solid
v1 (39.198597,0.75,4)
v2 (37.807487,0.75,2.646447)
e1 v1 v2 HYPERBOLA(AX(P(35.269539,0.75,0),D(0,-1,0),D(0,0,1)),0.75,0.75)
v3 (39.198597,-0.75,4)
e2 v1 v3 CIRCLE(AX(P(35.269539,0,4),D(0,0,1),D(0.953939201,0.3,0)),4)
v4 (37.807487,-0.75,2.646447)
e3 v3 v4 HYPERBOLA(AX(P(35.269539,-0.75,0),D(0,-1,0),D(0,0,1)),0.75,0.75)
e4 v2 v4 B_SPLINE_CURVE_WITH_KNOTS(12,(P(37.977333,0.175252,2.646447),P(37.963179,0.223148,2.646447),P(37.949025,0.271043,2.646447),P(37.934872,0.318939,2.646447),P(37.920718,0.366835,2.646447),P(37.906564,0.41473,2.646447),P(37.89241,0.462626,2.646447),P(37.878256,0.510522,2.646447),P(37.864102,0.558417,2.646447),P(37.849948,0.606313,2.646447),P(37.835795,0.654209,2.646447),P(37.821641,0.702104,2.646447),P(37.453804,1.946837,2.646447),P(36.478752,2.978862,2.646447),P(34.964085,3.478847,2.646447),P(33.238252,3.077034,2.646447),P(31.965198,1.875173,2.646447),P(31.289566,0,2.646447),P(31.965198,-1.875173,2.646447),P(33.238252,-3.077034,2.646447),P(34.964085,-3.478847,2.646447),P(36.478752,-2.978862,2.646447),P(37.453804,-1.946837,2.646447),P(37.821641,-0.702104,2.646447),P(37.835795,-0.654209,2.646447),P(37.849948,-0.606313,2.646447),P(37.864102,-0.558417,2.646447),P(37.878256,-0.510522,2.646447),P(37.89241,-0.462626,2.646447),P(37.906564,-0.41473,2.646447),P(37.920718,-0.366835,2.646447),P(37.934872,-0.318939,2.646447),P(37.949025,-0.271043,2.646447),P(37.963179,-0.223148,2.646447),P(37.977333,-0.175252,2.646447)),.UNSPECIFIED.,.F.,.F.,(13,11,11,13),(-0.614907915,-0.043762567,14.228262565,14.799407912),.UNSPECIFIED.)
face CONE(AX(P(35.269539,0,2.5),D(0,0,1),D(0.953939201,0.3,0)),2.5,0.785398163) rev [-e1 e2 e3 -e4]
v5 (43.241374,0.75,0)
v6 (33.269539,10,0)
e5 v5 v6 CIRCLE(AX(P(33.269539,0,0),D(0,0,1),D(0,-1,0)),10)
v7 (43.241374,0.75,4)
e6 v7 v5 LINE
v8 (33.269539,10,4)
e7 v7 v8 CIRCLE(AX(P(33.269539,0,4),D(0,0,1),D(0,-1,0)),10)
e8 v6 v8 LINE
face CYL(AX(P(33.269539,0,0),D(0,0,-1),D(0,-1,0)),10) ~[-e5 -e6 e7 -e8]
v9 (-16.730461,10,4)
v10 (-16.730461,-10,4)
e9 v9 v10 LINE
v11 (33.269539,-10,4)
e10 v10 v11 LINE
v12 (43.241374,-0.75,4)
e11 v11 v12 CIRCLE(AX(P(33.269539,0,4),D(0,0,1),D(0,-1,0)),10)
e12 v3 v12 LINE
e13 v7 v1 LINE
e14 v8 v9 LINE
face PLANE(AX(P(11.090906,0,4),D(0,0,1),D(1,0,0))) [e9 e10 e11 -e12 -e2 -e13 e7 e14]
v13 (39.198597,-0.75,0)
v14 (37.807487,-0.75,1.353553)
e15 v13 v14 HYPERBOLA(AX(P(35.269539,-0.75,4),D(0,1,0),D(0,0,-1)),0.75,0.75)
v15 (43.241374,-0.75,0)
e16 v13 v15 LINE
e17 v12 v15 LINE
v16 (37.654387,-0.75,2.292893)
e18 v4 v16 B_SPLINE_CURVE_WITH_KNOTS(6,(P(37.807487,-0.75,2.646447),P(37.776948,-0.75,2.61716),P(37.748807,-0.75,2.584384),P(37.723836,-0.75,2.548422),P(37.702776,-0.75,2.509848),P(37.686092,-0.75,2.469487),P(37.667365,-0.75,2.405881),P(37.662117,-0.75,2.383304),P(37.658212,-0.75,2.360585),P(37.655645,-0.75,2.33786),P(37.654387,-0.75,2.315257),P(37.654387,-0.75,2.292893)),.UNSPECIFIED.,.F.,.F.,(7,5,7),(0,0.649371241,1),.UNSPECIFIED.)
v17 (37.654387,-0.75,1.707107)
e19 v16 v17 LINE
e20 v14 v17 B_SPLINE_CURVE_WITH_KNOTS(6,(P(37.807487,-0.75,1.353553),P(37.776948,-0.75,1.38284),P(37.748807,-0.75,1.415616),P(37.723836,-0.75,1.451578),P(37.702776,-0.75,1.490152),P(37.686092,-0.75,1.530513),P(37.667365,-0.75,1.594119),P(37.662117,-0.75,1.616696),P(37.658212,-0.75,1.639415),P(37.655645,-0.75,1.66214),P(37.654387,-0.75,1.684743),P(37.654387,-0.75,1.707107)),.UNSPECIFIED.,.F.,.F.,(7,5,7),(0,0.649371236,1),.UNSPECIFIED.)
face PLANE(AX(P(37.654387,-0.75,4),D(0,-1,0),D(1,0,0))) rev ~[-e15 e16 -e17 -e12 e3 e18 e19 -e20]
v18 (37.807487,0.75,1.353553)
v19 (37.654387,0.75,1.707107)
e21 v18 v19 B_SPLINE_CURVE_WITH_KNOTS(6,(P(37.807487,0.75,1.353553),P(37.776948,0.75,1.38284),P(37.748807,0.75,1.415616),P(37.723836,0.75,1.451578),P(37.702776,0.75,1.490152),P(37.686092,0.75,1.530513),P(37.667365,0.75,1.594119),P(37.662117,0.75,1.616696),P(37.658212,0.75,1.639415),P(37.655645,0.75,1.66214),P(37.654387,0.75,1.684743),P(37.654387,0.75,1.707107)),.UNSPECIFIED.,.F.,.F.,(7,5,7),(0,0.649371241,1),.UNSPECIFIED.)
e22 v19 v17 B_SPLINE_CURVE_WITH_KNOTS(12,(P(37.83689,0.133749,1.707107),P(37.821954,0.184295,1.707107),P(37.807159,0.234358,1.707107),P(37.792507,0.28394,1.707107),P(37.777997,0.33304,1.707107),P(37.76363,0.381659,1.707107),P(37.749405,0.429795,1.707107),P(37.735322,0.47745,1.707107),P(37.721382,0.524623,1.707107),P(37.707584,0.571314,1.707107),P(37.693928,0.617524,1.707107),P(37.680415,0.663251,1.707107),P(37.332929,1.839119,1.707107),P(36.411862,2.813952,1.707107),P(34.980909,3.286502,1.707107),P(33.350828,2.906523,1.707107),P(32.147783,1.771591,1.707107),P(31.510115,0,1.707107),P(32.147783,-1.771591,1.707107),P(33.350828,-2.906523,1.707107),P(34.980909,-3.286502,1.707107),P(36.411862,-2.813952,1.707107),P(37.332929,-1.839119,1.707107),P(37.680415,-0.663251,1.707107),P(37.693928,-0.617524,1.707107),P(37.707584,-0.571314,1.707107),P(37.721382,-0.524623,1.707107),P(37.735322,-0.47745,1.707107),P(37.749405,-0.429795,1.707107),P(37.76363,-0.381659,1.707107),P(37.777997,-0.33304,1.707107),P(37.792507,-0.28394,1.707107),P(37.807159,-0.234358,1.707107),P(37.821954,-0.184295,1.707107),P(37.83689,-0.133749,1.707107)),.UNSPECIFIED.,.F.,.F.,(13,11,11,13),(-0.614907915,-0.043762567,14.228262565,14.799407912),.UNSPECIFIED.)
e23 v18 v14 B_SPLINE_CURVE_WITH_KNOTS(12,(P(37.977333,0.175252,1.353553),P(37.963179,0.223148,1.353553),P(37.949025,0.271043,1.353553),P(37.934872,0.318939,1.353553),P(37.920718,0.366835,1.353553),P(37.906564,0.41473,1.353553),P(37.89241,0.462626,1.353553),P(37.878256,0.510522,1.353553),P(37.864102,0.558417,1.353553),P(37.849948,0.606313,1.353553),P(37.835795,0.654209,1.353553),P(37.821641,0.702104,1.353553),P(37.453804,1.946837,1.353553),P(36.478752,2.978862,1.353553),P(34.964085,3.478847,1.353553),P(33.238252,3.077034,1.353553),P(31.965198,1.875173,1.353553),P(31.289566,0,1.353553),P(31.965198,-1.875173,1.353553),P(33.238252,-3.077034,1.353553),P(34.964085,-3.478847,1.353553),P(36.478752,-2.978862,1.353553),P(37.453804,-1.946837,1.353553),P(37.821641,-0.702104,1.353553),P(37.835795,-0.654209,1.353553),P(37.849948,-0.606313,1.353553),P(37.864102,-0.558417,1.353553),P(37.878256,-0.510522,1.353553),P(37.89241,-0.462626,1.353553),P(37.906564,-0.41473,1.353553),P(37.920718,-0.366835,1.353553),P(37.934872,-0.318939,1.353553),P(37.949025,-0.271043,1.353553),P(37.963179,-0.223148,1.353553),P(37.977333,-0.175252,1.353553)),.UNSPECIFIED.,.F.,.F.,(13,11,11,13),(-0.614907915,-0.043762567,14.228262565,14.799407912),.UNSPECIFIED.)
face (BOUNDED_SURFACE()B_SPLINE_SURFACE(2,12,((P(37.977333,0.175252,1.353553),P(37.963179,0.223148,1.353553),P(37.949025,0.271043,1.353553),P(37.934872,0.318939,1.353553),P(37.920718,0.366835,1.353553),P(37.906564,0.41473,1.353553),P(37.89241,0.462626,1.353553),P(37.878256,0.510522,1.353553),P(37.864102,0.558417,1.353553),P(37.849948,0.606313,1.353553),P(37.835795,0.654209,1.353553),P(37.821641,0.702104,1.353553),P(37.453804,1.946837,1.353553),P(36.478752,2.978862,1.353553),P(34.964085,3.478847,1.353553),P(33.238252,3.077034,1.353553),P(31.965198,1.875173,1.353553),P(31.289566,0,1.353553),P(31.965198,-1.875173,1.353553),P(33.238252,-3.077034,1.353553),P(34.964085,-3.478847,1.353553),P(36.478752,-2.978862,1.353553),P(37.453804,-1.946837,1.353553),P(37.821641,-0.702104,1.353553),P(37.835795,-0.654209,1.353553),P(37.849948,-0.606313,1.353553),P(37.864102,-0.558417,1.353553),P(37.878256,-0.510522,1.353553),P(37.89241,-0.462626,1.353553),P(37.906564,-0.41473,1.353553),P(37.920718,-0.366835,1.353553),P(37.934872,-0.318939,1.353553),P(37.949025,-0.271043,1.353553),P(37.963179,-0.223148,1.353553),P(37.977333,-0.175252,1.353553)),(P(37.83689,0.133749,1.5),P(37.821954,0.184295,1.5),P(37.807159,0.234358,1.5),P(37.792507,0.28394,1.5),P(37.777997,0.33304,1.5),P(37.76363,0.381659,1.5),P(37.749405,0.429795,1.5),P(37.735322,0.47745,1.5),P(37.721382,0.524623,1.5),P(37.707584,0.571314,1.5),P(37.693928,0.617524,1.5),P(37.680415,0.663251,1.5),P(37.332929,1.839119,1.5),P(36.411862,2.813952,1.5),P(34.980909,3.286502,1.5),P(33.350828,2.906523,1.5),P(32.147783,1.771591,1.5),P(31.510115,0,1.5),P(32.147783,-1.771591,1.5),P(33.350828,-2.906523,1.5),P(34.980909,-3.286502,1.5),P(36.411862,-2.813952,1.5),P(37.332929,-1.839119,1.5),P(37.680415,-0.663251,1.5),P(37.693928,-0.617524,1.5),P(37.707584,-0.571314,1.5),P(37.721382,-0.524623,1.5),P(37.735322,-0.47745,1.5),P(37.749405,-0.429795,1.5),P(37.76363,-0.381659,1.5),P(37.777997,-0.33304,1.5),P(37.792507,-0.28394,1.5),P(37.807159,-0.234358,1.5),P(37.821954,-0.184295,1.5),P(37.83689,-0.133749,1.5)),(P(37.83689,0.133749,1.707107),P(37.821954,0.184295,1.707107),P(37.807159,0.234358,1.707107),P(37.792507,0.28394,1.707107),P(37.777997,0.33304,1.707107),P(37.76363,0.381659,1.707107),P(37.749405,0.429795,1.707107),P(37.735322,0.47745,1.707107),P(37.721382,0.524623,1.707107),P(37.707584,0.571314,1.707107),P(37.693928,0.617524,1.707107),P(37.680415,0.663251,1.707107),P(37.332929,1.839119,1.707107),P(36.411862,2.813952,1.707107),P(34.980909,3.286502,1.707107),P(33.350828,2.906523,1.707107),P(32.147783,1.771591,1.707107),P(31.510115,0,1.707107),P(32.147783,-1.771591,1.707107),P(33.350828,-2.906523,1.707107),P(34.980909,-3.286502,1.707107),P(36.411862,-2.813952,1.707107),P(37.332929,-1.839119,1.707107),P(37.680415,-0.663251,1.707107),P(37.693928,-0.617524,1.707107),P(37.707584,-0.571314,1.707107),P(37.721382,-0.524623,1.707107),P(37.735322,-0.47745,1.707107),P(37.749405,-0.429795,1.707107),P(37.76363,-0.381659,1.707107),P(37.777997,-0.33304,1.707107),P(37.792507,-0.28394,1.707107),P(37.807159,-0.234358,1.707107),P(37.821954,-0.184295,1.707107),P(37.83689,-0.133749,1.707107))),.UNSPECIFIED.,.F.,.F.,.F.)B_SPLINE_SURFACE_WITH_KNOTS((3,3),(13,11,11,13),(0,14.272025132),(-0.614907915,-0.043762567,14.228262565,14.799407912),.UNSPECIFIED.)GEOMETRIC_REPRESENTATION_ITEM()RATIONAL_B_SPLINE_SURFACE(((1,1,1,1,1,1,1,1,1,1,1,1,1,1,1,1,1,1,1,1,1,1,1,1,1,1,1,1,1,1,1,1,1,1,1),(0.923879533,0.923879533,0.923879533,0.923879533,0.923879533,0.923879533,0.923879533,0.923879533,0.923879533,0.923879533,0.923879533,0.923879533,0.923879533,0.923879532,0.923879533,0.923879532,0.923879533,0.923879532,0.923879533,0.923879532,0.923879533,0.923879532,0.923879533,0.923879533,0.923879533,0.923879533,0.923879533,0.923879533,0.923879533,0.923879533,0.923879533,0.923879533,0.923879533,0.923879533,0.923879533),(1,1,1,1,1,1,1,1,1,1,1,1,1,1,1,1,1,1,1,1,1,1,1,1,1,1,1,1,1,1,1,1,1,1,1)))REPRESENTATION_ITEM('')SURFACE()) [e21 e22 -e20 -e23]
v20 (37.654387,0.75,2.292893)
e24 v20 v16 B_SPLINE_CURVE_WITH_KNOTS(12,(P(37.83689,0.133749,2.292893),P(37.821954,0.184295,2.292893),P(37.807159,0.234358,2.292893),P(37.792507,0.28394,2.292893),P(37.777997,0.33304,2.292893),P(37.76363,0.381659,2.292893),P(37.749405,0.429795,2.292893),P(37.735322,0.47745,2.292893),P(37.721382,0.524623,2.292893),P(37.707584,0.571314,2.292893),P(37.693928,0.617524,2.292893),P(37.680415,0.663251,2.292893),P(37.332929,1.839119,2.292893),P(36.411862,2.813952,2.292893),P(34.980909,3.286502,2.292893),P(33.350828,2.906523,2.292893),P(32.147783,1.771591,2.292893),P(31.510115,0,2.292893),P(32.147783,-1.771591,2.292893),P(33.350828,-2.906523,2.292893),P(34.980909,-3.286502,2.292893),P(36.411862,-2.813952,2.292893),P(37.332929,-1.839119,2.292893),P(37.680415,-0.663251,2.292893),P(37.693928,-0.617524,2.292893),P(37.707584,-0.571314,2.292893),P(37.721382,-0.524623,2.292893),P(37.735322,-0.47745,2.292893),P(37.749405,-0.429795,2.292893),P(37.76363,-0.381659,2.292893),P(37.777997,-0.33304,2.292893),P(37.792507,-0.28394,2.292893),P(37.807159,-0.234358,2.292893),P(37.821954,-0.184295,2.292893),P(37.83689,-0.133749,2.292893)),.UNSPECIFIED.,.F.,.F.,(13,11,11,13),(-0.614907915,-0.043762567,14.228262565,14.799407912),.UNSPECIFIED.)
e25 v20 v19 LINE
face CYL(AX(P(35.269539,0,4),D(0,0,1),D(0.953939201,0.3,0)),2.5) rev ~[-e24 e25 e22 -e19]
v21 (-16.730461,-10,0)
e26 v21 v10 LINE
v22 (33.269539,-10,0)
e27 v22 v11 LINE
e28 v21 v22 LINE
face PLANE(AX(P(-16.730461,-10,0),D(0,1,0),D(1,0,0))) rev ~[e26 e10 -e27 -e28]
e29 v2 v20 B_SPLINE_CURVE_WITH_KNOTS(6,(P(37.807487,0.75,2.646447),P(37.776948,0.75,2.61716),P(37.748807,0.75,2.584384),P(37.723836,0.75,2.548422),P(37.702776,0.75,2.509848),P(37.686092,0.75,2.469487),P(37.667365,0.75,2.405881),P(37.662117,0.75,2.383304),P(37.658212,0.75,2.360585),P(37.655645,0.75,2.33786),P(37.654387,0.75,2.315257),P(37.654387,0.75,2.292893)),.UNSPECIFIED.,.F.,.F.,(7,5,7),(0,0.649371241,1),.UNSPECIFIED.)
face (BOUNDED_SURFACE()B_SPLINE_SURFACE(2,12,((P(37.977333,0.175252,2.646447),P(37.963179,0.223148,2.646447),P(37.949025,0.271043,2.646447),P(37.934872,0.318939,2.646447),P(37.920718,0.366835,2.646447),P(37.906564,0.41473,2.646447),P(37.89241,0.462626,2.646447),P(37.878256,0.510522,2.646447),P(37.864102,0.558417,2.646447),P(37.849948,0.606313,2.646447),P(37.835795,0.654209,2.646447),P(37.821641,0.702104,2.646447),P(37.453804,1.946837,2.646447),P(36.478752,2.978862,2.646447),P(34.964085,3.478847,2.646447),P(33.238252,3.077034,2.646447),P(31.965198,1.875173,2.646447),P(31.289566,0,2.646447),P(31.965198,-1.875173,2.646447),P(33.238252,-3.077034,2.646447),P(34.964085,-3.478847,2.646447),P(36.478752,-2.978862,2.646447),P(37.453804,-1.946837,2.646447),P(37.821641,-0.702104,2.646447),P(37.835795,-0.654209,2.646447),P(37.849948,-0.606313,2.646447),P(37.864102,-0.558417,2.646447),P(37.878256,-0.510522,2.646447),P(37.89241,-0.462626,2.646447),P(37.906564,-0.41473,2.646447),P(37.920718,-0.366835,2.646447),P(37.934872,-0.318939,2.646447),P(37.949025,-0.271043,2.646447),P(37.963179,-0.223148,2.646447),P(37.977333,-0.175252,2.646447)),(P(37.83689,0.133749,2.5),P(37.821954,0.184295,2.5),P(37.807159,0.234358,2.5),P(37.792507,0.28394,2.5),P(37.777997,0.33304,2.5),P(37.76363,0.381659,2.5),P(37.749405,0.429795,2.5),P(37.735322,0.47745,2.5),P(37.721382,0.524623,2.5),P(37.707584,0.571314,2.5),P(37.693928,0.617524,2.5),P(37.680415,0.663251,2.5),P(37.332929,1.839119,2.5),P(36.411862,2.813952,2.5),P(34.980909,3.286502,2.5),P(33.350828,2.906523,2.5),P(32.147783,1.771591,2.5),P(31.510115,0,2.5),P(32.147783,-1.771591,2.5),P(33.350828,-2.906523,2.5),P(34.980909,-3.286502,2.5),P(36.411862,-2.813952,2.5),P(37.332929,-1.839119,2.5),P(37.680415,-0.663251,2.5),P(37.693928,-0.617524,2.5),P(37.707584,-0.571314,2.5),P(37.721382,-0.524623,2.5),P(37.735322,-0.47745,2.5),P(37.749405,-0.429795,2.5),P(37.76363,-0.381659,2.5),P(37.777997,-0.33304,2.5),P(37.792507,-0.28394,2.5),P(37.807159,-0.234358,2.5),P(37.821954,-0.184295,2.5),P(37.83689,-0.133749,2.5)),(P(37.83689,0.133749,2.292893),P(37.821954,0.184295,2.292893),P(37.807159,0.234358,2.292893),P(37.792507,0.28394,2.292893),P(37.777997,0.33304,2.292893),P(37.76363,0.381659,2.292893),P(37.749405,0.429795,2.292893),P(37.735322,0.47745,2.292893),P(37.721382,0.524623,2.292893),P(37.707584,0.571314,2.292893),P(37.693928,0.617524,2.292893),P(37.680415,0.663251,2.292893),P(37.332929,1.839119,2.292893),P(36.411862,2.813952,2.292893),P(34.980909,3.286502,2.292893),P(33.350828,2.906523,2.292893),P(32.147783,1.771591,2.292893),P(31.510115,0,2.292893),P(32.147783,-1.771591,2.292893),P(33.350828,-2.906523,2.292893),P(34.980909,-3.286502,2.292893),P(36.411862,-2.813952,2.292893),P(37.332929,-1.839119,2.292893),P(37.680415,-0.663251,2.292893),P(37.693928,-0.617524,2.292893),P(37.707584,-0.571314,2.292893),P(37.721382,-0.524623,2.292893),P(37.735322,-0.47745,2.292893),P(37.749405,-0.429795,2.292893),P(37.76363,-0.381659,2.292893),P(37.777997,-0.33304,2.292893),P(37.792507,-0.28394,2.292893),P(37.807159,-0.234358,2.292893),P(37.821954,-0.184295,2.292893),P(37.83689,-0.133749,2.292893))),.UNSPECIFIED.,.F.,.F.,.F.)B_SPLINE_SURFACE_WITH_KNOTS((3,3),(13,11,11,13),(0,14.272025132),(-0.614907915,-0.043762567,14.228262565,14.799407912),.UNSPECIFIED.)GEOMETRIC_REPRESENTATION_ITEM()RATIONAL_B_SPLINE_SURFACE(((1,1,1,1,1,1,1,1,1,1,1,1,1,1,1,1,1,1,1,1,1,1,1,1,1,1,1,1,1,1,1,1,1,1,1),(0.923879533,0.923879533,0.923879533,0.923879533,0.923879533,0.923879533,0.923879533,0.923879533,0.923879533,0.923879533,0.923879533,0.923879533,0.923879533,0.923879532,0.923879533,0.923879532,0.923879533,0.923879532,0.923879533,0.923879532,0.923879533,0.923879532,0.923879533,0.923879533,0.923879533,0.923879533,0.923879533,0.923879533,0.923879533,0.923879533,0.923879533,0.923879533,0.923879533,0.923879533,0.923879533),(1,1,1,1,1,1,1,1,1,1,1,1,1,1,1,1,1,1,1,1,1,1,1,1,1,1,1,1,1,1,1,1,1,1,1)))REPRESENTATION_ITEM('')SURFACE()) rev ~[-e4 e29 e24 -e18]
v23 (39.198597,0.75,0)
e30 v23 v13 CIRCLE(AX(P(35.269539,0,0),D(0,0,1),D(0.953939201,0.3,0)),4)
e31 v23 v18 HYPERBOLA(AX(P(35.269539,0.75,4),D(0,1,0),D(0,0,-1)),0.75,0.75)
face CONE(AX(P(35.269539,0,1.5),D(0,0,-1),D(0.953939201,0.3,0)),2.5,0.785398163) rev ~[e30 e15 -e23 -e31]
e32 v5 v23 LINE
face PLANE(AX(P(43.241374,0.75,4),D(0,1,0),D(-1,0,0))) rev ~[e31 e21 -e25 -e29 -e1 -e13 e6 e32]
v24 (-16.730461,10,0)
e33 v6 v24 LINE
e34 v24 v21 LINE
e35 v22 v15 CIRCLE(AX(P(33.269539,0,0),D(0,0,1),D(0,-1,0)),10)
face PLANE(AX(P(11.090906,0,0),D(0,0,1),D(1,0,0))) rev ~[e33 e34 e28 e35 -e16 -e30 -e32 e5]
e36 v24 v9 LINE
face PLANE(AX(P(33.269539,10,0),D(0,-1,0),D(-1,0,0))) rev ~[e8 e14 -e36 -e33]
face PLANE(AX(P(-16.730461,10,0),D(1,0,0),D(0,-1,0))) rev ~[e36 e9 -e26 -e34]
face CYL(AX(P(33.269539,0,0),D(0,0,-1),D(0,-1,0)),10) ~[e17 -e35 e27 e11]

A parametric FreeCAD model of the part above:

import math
import FreeCAD as App
import Part
import Sketcher
Q = App.Units.Quantity


def edges_at(feature, points):
    """Names of the edges that pass closest to the given points."""
    edges = feature.Shape.Edges
    near = lambda p: min(range(len(edges)), key=lambda i: edges[i].distToShape(Part.Vertex(*p))[0])
    return sorted({f"Edge{near(p) + 1}" for p in points})

doc = App.newDocument("Part")
body = doc.addObject("PartDesign::Body", "Body")

# Sketch on XY plane
sketch1 = doc.addObject("Sketcher::SketchObject", "Sketch")
body.addObject(sketch1)
sketch1.AttachmentSupport = (doc.XY_Plane, [""])
sketch1.MapMode = "FlatFace"
sketch1.addGeometry([
    Part.LineSegment(App.Vector(-17, 10, 0), App.Vector(-17, -10, 0)),
    Part.LineSegment(App.Vector(-17, -10, 0), App.Vector(33, -10, 0)),
    Part.ArcOfCircle(Part.Circle(App.Vector(33, 0, 0), App.Vector(0, 0, 1), 10), math.radians(-90), math.radians(90)),
    Part.LineSegment(App.Vector(33, 10, 0), App.Vector(-17, 10, 0)),
], False)
sketch1.addConstraint([
    Sketcher.Constraint("Coincident", 0, 2, 1, 1),
    Sketcher.Constraint("Tangent", 1, 2, 2, 1),
    Sketcher.Constraint("Tangent", 2, 2, 3, 1),
    Sketcher.Constraint("Coincident", 3, 2, 0, 1),
    Sketcher.Constraint("Vertical", 0),
    Sketcher.Constraint("Horizontal", 1),
    Sketcher.Constraint("Horizontal", 3),
    Sketcher.Constraint("PointOnObject", 2, 3, -1),
    Sketcher.Constraint("Radius", 2, Q("10 mm")),
    Sketcher.Constraint("DistanceX", 1, 1, 1, 2, Q("50 mm")),
    Sketcher.Constraint("DistanceX", -1, 1, 2, 3, Q("33.269539 mm")),
])
pad1 = doc.addObject("PartDesign::Pad", "Pad")
body.addObject(pad1)
pad1.Profile = sketch1
pad1.Length = 4

# Sketch on XY plane
sketch2 = doc.addObject("Sketcher::SketchObject", "Sketch001")
body.addObject(sketch2)
sketch2.AttachmentSupport = (doc.XY_Plane, [""])
sketch2.MapMode = "FlatFace"
sketch2.AttachmentOffset = App.Placement(App.Vector(0, 0, 4), App.Rotation())
sketch2.addGeometry([
    Part.LineSegment(App.Vector(37.7, -0.8, 0), App.Vector(43.2, -0.8, 0)),
    Part.ArcOfCircle(Part.Circle(App.Vector(33.3, 0, 0), App.Vector(0, 0, 1), 10), math.radians(-4.3), math.radians(4.3)),
    Part.LineSegment(App.Vector(43.2, 0.8, 0), App.Vector(37.7, 0.8, 0)),
    Part.ArcOfCircle(Part.Circle(App.Vector(35.3, 0, 0), App.Vector(0, 0, 1), 2.5), math.radians(17), math.radians(343)),
], False)
sketch2.addConstraint([
    Sketcher.Constraint("Coincident", 0, 2, 1, 1),
    Sketcher.Constraint("Coincident", 1, 2, 2, 1),
    Sketcher.Constraint("Coincident", 2, 2, 3, 1),
    Sketcher.Constraint("Coincident", 3, 2, 0, 1),
    Sketcher.Constraint("Horizontal", 0),
    Sketcher.Constraint("Horizontal", 2),
    Sketcher.Constraint("Symmetric", 0, 2, 1, 2, -1),
    Sketcher.Constraint("PointOnObject", 3, 3, -1),
    Sketcher.Constraint("Radius", 1, Q("10 mm")),
    Sketcher.Constraint("Radius", 3, Q("2.5 mm")),
    Sketcher.Constraint("DistanceX", 1, 3, 3, 3, Q("2 mm")),
    Sketcher.Constraint("DistanceY", 0, 2, 1, 2, Q("1.5 mm")),
    Sketcher.Constraint("DistanceX", -1, 1, 1, 3, Q("33.269539 mm")),
])
pocket1 = doc.addObject("PartDesign::Pocket", "Pocket")
body.addObject(pocket1)
pocket1.Profile = sketch2
pocket1.Type = "ThroughAll"
doc.recompute()

chamfer = doc.addObject("PartDesign::Chamfer", "Chamfer")
body.addObject(chamfer)
chamfer.Base = (pocket1, edges_at(pocket1, [(32.77, 0, 4), (32.77, 0, 0)]))
chamfer.Size = 1.5
doc.recompute()

fillet = doc.addObject("PartDesign::Fillet", "Fillet")
body.addObject(fillet)
fillet.Base = (chamfer, edges_at(chamfer, [(32.77, 0, 2.5), (32.77, 0, 1.5)]))
fillet.Radius = 0.5

doc.recompute()
